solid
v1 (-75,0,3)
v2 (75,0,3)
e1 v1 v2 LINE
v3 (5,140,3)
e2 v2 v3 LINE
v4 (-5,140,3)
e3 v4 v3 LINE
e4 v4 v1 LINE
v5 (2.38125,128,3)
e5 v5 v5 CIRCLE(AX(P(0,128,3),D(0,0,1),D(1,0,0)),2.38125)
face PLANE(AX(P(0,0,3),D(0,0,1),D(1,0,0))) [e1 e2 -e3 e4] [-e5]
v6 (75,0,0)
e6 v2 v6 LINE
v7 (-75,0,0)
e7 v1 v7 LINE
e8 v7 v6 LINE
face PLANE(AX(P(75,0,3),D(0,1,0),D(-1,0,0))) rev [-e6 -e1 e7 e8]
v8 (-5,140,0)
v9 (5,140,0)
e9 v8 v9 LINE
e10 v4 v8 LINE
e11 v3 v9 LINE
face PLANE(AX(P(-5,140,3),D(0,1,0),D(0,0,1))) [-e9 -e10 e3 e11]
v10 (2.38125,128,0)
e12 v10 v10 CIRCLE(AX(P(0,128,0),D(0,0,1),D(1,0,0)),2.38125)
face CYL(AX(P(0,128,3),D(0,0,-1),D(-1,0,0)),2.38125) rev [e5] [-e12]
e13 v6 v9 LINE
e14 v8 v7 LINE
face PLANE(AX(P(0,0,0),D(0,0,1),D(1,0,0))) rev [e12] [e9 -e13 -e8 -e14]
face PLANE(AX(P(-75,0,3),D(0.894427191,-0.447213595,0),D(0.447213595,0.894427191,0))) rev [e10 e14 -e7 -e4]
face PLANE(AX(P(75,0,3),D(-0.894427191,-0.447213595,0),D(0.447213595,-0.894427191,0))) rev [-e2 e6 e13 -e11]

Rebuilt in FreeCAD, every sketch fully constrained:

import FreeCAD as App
import Part
import Sketcher
from FreeCAD import Vector
Q = App.Units.Quantity

doc = App.newDocument("Part")
body = doc.addObject("PartDesign::Body", "Body")

# Sketch on XY plane
sketch1 = body.newObject("Sketcher::SketchObject", "Sketch")
sketch1.AttachmentSupport = (doc.getObject("XY_Plane"), [""])
sketch1.MapMode = "FlatFace"
sketch1.addGeometry([
    Part.LineSegment(Vector(-75, 0, 0), Vector(75, 0, 0)),
    Part.LineSegment(Vector(75, 0, 0), Vector(0, 150, 0)),
    Part.LineSegment(Vector(0, 150, 0), Vector(-75, 0, 0)),
], False)
sketch1.addConstraint([
    Sketcher.Constraint("Coincident", 0, 2, 1, 1),
    Sketcher.Constraint("Coincident", 1, 2, 2, 1),
    Sketcher.Constraint("Coincident", 2, 2, 0, 1),
    Sketcher.Constraint("Horizontal", 0),
    Sketcher.Constraint("Symmetric", 0, 2, 2, 2, -1, 1),
    Sketcher.Constraint("PointOnObject", 1, 2, -2),
    Sketcher.Constraint("DistanceX", 0, 1, 0, 2, Q("150 mm")),
    Sketcher.Constraint("DistanceY", -1, 1, 1, 2, Q("150 mm")),
])
pad1 = body.newObject("PartDesign::Pad", "Pad")
pad1.Profile = sketch1
pad1.Length = 3

# Sketch on XY plane
sketch2 = body.newObject("Sketcher::SketchObject", "Sketch001")
sketch2.AttachmentSupport = (doc.getObject("XY_Plane"), [""])
sketch2.MapMode = "FlatFace"
sketch2.addGeometry([
    Part.Circle(Vector(0, 128, 0), Vector(0, 0, 1), 2.4),
    Part.LineSegment(Vector(5, 140, 0), Vector(0, 150, 0)),
    Part.LineSegment(Vector(0, 150, 0), Vector(-5, 140, 0)),
    Part.LineSegment(Vector(-5, 140, 0), Vector(5, 140, 0)),
], False)
sketch2.addConstraint([
    Sketcher.Constraint("Coincident", 1, 2, 2, 1),
    Sketcher.Constraint("Coincident", 2, 2, 3, 1),
    Sketcher.Constraint("Coincident", 3, 2, 1, 1),
    Sketcher.Constraint("Horizontal", 3),
    Sketcher.Constraint("PointOnObject", 0, 3, -2),
    Sketcher.Constraint("PointOnObject", 1, 2, -2),
    Sketcher.Constraint("Equal", 1, 2),
    Sketcher.Constraint("DistanceX", 3, 1, 3, 2, Q("10 mm")),
    Sketcher.Constraint("DistanceY", -1, 1, 0, 3, Q("128 mm")),
    Sketcher.Constraint("DistanceY", -1, 1, 1, 2, Q("150 mm")),
    Sketcher.Constraint("DistanceY", -1, 1, 2, 2, Q("140 mm")),
    Sketcher.Constraint("Diameter", 0, Q("4.7625 mm")),
])
pocket1 = body.newObject("PartDesign::Pocket", "Pocket")
pocket1.Profile = sketch2
pocket1.Type = "ThroughAll"
pocket1.Reversed = True

doc.recompute()
